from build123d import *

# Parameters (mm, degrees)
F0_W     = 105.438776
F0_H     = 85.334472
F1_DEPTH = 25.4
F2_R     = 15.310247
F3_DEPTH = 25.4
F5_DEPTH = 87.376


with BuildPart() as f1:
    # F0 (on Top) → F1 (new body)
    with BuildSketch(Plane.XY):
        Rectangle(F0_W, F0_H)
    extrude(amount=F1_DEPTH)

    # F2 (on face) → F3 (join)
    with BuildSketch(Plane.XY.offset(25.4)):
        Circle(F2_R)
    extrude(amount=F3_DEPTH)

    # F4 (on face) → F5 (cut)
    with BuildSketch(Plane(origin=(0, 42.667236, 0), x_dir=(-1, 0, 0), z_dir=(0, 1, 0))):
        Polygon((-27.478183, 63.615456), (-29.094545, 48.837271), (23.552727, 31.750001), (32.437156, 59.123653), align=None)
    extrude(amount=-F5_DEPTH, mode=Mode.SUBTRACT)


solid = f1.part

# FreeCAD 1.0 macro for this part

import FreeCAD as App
import Part
import Sketcher
from FreeCAD import Vector
Q = App.Units.Quantity


def add_polygon(sketch, points):
    """Adds a closed chain of lines whose ends are joined by coincident constraints."""
    first, n = sketch.GeometryCount, len(points)
    for a, b in zip(points, points[1:] + points[:1]):
        sketch.addGeometry(Part.LineSegment(App.Vector(*a, 0), App.Vector(*b, 0)), False)
    for i in range(n):
        sketch.addConstraint(Sketcher.Constraint("Coincident", first + i, 2, first + (i + 1) % n, 1))

doc = App.newDocument("Part")
body = doc.addObject("PartDesign::Body", "Body")

sketch1 = body.newObject("Sketcher::SketchObject", "Sketch")
sketch1.AttachmentSupport = (doc.getObject("XY_Plane"), [""])
sketch1.MapMode = "FlatFace"
add_polygon(sketch1, [(-53, 43), (-53, -43), (53, -43), (53, 43)])
sketch1.addConstraint(Sketcher.Constraint("Vertical", 0))
sketch1.addConstraint(Sketcher.Constraint("Horizontal", 1))
sketch1.addConstraint(Sketcher.Constraint("Vertical", 2))
sketch1.addConstraint(Sketcher.Constraint("Horizontal", 3))
sketch1.addConstraint(Sketcher.Constraint("Symmetric", 0, 2, 2, 2, -1, 1))
sketch1.addConstraint(Sketcher.Constraint("DistanceX", 1, 1, 1, 2, 105.438776))
sketch1.addConstraint(Sketcher.Constraint("DistanceY", 0, 2, 0, 1, 85.334472))
pad1 = body.newObject("PartDesign::Pad", "Pad")
pad1.Profile = sketch1
pad1.Length = Q("1 in")

sketch2 = body.newObject("Sketcher::SketchObject", "Sketch001")
sketch2.AttachmentSupport = (doc.getObject("XY_Plane"), [""])
sketch2.MapMode = "FlatFace"
sketch2.AttachmentOffset = App.Placement(Vector(0, 0, 1 * 25.4), App.Rotation())
sketch2.addGeometry(Part.Circle(Vector(0, 0, 0), Vector(0, 0, 1), 15), False)
sketch2.addConstraint(Sketcher.Constraint("Coincident", 0, 3, -1, 1))
sketch2.addConstraint(Sketcher.Constraint("Diameter", 0, 30.620494))
pad2 = body.newObject("PartDesign::Pad", "Pad001")
pad2.Profile = sketch2
pad2.Length = Q("1 in")

sketch3 = body.newObject("Sketcher::SketchObject", "Sketch002")
sketch3.AttachmentSupport = (doc.getObject("XZ_Plane"), [""])
sketch3.MapMode = "FlatFace"
sketch3.AttachmentOffset = App.Placement(Vector(0, 0, -42.667236), App.Rotation())
add_polygon(sketch3, [(27, 64), (29, 49), (-24, 32), (-32, 59)])
sketch3.addConstraint(Sketcher.Constraint("Perpendicular", 1, 2))
sketch3.addConstraint(Sketcher.Constraint("DistanceY", -1, 1, 1, 2, Q("1.25 in")))
sketch3.addConstraint(Sketcher.Constraint("DistanceX", 2, 2, 0, 2, 61.531701))
sketch3.addConstraint(Sketcher.Constraint("Distance", 1, 55.350791))
sketch3.addConstraint(Sketcher.Constraint("Distance", 2, 28.779331))
sketch3.addConstraint(Sketcher.Constraint("DistanceX", 3, 2, 0, 2, 1.616362))
sketch3.addConstraint(Sketcher.Constraint("Distance", 0, 14.866317))
sketch3.addConstraint(Sketcher.Constraint("DistanceX", -1, 1, 0, 2, 29.094545))
pocket1 = body.newObject("PartDesign::Pocket", "Pocket")
pocket1.Profile = sketch3
pocket1.Length = Q("3.44 in")
pocket1.Reversed = True

doc.recompute()
